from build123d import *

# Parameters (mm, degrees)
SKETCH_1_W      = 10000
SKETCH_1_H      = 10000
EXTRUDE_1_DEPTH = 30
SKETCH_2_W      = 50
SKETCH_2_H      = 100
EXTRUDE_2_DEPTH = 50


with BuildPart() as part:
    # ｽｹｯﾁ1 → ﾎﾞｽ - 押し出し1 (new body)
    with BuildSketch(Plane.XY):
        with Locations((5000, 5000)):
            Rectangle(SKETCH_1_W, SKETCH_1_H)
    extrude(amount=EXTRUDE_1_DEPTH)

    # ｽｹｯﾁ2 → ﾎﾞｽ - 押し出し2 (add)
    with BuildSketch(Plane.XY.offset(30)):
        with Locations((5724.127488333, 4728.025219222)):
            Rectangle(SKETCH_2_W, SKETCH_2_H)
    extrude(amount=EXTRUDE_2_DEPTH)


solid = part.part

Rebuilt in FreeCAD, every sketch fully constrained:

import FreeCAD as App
import Part
import Sketcher
Q = App.Units.Quantity

doc = App.newDocument("Part")
body = doc.addObject("PartDesign::Body", "Body")

# Sketch on XY plane
sketch1 = body.newObject("Sketcher::SketchObject", "Sketch")
sketch1.AttachmentSupport = (doc.getObject("XY_Plane"), [""])
sketch1.MapMode = "FlatFace"
sketch1.addGeometry([
    Part.LineSegment(App.Vector(0, 10000, 0), App.Vector(0, 0, 0)),
    Part.LineSegment(App.Vector(0, 0, 0), App.Vector(10000, 0, 0)),
    Part.LineSegment(App.Vector(10000, 0, 0), App.Vector(10000, 10000, 0)),
    Part.LineSegment(App.Vector(10000, 10000, 0), App.Vector(0, 10000, 0)),
], False)
sketch1.addConstraint([
    Sketcher.Constraint("Coincident", 0, 2, 1, 1),
    Sketcher.Constraint("Coincident", 1, 2, 2, 1),
    Sketcher.Constraint("Coincident", 2, 2, 3, 1),
    Sketcher.Constraint("Coincident", 3, 2, 0, 1),
    Sketcher.Constraint("Vertical", 0),
    Sketcher.Constraint("Horizontal", 1),
    Sketcher.Constraint("Vertical", 2),
    Sketcher.Constraint("Horizontal", 3),
    Sketcher.Constraint("Coincident", 0, 2, -1, 1),
    Sketcher.Constraint("Equal", 3, 0),
    Sketcher.Constraint("DistanceX", 1, 1, 1, 2, Q("10000 mm")),
])
pad1 = body.newObject("PartDesign::Pad", "Pad")
pad1.Profile = sketch1
pad1.Length = 30

# Sketch on XY plane
sketch2 = body.newObject("Sketcher::SketchObject", "Sketch001")
sketch2.AttachmentSupport = (doc.getObject("XY_Plane"), [""])
sketch2.MapMode = "FlatFace"
sketch2.AttachmentOffset = App.Placement(App.Vector(0, 0, 30), App.Rotation())
sketch2.addGeometry([
    Part.LineSegment(App.Vector(5699, 4778, 0), App.Vector(5699, 4678, 0)),
    Part.LineSegment(App.Vector(5699, 4678, 0), App.Vector(5749, 4678, 0)),
    Part.LineSegment(App.Vector(5749, 4678, 0), App.Vector(5749, 4778, 0)),
    Part.LineSegment(App.Vector(5749, 4778, 0), App.Vector(5699, 4778, 0)),
], False)
sketch2.addConstraint([
    Sketcher.Constraint("Coincident", 0, 2, 1, 1),
    Sketcher.Constraint("Coincident", 1, 2, 2, 1),
    Sketcher.Constraint("Coincident", 2, 2, 3, 1),
    Sketcher.Constraint("Coincident", 3, 2, 0, 1),
    Sketcher.Constraint("Vertical", 0),
    Sketcher.Constraint("Horizontal", 1),
    Sketcher.Constraint("Vertical", 2),
    Sketcher.Constraint("Horizontal", 3),
    Sketcher.Constraint("DistanceX", 1, 1, 1, 2, Q("50 mm")),
    Sketcher.Constraint("DistanceY", 0, 2, 0, 1, Q("100 mm")),
    Sketcher.Constraint("DistanceX", -1, 1, 0, 2, Q("5699.127488 mm")),
    Sketcher.Constraint("DistanceY", -1, 1, 0, 2, Q("4678.025219 mm")),
])
pad2 = body.newObject("PartDesign::Pad", "Pad001")
pad2.Profile = sketch2
pad2.Length = 50

doc.recompute()
